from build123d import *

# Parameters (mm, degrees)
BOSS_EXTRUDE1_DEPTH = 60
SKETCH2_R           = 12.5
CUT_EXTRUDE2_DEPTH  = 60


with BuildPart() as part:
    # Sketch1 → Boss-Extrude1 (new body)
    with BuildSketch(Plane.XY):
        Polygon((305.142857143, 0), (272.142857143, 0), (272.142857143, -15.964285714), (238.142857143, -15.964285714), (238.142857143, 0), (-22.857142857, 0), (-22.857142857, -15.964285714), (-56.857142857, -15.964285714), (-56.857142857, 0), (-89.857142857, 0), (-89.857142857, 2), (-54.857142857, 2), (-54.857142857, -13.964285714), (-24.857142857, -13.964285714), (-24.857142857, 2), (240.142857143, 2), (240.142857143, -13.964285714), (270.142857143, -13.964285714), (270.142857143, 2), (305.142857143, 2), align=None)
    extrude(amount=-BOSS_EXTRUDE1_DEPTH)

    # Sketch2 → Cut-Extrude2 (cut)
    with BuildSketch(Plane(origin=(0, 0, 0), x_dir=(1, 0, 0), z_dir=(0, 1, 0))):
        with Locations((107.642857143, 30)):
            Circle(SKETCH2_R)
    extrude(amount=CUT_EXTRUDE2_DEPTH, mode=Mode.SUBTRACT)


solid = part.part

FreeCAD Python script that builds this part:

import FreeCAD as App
import Part
import Sketcher
from FreeCAD import Vector


def add_polygon(sketch, points):
    """Adds a closed chain of lines whose ends are joined by coincident constraints."""
    first, n = sketch.GeometryCount, len(points)
    for a, b in zip(points, points[1:] + points[:1]):
        sketch.addGeometry(Part.LineSegment(App.Vector(*a, 0), App.Vector(*b, 0)), False)
    for i in range(n):
        sketch.addConstraint(Sketcher.Constraint("Coincident", first + i, 2, first + (i + 1) % n, 1))

doc = App.newDocument("Part")
body = doc.addObject("PartDesign::Body", "Body")

sketch1 = body.newObject("Sketcher::SketchObject", "Sketch")
sketch1.AttachmentSupport = (doc.getObject("XY_Plane"), [""])
sketch1.MapMode = "FlatFace"
add_polygon(sketch1, [(272.1, 0), (305.1, 0), (305.1, 2), (270.1, 2), (270.1, -14), (240.1, -14), (240.1, 2), (-24.9, 2), (-24.9, -14), (-54.9, -14), (-54.9, 2), (-89.9, 2), (-89.9, 0), (-56.9, 0), (-56.9, -16), (-22.9, -16), (-22.9, 0), (238.1, 0), (238.1, -16), (272.1, -16)])
sketch1.addConstraint([
    Sketcher.Constraint("Horizontal", 0),
    Sketcher.Constraint("Vertical", 1),
    Sketcher.Constraint("Horizontal", 2),
    Sketcher.Constraint("Vertical", 3),
    Sketcher.Constraint("Horizontal", 4),
    Sketcher.Constraint("Vertical", 5),
    Sketcher.Constraint("Horizontal", 6),
    Sketcher.Constraint("Vertical", 7),
    Sketcher.Constraint("Horizontal", 8),
    Sketcher.Constraint("Vertical", 9),
    Sketcher.Constraint("Horizontal", 10),
    Sketcher.Constraint("Vertical", 11),
    Sketcher.Constraint("Horizontal", 12),
    Sketcher.Constraint("Vertical", 13),
    Sketcher.Constraint("Horizontal", 14),
    Sketcher.Constraint("Vertical", 15),
    Sketcher.Constraint("Horizontal", 16),
    Sketcher.Constraint("Vertical", 17),
    Sketcher.Constraint("Horizontal", 18),
    Sketcher.Constraint("Vertical", 19),
    Sketcher.Constraint("PointOnObject", 0, 2, -1),
    Sketcher.Constraint("PointOnObject", 11, 2, -1),
    Sketcher.Constraint("PointOnObject", 15, 2, -1),
    Sketcher.Constraint("Horizontal", 2, 2, 5, 2),
    Sketcher.Constraint("Horizontal", 4, 2, 7, 2),
    Sketcher.Constraint("Horizontal", 6, 2, 9, 2),
    Sketcher.Constraint("Horizontal", 14, 2, 17, 2),
    Sketcher.Constraint("Equal", 4, 8),
    Sketcher.Constraint("Equal", 2, 10),
    Sketcher.Constraint("Equal", 0, 12),
    Sketcher.Constraint("Equal", 14, 18),
    Sketcher.Constraint("Equal", 9, 13),
    Sketcher.Constraint("DistanceX", 0, 1, 0, 2, 33.0),
    Sketcher.Constraint("DistanceX", 2, 2, 2, 1, 35.0),
    Sketcher.Constraint("DistanceX", 4, 2, 4, 1, 30.0),
    Sketcher.Constraint("DistanceX", 6, 2, 6, 1, 265.0),
    Sketcher.Constraint("DistanceX", 14, 1, 14, 2, 34.0),
    Sketcher.Constraint("DistanceY", 1, 1, 1, 2, 2.0),
    Sketcher.Constraint("DistanceY", 3, 2, 3, 1, 15.964286),
    Sketcher.Constraint("DistanceX", -1, 1, 0, 2, 305.142857),
])
pad1 = body.newObject("PartDesign::Pad", "Pad")
pad1.Profile = sketch1
pad1.Length = 60
pad1.Reversed = True

sketch2 = body.newObject("Sketcher::SketchObject", "Sketch001")
sketch2.AttachmentSupport = (doc.getObject("XZ_Plane"), [""])
sketch2.MapMode = "FlatFace"
sketch2.addGeometry(Part.Circle(Vector(108, -30, 0), Vector(0, 0, 1), 12), False)
sketch2.addConstraint([
    Sketcher.Constraint("Diameter", 0, 25.0),
    Sketcher.Constraint("DistanceY", 0, 3, -1, 1, 30.0),
    Sketcher.Constraint("DistanceX", -1, 1, 0, 3, 107.642857),
])
pocket1 = body.newObject("PartDesign::Pocket", "Pocket")
pocket1.Profile = sketch2
pocket1.Length = 60

doc.recompute()
